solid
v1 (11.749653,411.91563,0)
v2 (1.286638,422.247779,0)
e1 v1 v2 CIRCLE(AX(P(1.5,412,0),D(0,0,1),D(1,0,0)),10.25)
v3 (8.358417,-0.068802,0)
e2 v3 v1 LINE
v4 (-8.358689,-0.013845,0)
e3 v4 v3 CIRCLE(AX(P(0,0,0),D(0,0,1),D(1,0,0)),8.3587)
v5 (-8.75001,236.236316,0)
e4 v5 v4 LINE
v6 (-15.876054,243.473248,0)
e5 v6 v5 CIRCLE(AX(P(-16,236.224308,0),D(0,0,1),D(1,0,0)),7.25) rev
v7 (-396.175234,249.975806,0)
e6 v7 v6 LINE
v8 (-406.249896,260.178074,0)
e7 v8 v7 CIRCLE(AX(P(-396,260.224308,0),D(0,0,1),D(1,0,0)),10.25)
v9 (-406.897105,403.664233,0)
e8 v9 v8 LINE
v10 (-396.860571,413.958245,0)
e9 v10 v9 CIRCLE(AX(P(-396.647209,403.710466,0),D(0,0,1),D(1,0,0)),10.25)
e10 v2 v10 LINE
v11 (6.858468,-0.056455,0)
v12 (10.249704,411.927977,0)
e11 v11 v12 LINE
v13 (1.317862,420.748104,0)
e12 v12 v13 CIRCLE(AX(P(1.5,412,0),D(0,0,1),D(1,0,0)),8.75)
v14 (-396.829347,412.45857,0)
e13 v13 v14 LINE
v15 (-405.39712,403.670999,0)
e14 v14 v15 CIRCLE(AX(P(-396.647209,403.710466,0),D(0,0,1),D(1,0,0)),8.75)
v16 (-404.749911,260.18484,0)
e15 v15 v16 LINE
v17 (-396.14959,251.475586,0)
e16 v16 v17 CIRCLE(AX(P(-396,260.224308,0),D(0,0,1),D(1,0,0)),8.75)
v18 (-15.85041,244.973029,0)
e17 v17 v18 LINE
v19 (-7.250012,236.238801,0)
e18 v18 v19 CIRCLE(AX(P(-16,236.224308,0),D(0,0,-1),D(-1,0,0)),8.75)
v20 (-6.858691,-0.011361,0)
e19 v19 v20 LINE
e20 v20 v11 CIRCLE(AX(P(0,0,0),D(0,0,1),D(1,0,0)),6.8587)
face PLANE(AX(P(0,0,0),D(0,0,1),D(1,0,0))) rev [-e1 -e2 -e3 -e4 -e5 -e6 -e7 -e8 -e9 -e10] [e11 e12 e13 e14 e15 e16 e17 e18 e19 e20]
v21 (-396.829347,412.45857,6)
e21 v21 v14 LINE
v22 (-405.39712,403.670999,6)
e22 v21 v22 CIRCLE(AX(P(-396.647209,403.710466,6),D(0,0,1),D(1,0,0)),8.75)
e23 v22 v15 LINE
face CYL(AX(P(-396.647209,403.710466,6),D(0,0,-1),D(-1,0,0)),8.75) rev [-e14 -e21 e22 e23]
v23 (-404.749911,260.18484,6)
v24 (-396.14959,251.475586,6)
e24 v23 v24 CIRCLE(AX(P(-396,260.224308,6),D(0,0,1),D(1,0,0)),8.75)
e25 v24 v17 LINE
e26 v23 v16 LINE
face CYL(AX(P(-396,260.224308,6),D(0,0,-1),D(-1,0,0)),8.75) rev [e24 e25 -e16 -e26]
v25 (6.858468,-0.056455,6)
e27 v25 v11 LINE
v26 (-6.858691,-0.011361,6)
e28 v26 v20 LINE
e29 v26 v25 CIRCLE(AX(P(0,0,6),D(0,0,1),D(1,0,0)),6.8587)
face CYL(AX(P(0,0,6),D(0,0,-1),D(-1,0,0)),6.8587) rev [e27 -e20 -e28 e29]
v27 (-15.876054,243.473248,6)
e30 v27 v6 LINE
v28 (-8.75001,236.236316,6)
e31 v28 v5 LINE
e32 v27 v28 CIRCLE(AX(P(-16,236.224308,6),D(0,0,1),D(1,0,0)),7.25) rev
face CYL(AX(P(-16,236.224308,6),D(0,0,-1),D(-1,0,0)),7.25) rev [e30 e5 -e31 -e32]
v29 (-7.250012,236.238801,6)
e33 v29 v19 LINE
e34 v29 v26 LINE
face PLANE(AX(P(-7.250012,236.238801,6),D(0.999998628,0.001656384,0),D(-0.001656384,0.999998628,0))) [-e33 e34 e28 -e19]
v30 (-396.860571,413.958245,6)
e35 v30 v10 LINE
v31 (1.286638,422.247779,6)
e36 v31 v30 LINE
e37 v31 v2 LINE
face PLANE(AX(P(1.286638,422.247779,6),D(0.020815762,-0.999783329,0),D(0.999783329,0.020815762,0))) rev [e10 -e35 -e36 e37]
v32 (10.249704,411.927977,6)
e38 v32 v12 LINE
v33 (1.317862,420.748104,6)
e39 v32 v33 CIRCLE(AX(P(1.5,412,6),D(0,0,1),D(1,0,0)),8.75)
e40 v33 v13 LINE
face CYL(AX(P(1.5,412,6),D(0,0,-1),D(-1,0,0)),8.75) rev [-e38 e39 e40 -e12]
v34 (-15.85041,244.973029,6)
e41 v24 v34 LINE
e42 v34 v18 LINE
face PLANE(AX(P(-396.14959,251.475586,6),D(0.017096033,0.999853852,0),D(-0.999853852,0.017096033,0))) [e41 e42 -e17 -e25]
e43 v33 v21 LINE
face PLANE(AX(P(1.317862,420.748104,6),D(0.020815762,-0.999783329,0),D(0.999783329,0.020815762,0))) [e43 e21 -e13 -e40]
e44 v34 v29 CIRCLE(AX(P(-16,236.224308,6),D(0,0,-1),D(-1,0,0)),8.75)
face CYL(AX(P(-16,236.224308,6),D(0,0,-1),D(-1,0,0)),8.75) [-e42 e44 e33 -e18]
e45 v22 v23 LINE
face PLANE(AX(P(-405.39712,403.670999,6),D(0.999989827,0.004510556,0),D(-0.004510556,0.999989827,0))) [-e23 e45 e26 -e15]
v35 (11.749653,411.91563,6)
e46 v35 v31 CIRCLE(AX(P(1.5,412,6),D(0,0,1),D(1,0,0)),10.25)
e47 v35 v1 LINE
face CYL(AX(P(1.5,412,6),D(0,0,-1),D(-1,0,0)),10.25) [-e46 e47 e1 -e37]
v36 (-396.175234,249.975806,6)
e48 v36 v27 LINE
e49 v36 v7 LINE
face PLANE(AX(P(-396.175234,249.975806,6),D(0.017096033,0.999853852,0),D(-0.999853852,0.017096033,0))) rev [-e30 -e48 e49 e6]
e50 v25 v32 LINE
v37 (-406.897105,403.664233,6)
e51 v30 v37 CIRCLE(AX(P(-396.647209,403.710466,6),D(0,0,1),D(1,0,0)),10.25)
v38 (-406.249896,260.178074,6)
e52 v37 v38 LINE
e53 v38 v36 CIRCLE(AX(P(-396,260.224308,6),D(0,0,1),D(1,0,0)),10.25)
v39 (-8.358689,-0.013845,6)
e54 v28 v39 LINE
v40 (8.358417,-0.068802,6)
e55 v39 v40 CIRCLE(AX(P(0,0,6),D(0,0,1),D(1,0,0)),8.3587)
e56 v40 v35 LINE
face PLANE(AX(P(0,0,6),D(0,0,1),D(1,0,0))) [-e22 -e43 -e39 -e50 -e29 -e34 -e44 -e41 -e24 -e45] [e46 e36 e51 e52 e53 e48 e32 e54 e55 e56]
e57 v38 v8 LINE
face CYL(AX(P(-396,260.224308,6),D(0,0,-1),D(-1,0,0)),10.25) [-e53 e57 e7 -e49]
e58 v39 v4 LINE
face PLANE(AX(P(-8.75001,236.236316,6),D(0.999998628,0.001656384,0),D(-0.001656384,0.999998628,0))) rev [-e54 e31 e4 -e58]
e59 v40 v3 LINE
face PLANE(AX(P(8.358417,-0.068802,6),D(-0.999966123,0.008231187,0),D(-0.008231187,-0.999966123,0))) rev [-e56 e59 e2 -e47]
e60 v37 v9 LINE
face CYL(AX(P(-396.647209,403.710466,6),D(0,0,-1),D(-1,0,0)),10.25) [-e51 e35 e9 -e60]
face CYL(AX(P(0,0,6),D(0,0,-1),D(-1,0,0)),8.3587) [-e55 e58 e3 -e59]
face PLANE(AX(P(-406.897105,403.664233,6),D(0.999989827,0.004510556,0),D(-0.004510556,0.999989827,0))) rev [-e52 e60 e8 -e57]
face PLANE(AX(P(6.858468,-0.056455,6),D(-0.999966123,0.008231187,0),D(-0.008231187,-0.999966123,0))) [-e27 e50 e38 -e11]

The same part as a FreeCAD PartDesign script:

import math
import FreeCAD as App
import Part
import Sketcher

V = App.Vector

doc = App.newDocument("Part")
body = doc.addObject("PartDesign::Body", "Body")

sketch1 = doc.addObject("Sketcher::SketchObject", "Sketch")
body.addObject(sketch1)
sketch1.AttachmentSupport = (doc.XY_Plane, [""])
sketch1.MapMode = "FlatFace"
sketch1.addGeometry(Part.LineSegment(V(-8.75001, 236.236316, 0), V(-8.358689, -0.013845, 0)), False)
sketch1.addGeometry(Part.ArcOfCircle(Part.Circle(V(0, 0, 0), V(0, 0, 1), 8.3587), math.radians(-179.905096), math.radians(-0.471618)), False)
sketch1.addGeometry(Part.LineSegment(V(8.358417, -0.068802, 0), V(11.749653, 411.91563, 0)), False)
sketch1.addGeometry(Part.ArcOfCircle(Part.Circle(V(1.5, 412, 0), V(0, 0, 1), 10.25), math.radians(-0.471618), math.radians(91.192741)), False)
sketch1.addGeometry(Part.LineSegment(V(1.286638, 422.247779, 0), V(-396.860571, 413.958245, 0)), False)
sketch1.addGeometry(Part.ArcOfCircle(Part.Circle(V(-396.647209, 403.710466, 0), V(0, 0, 1), 10.25), math.radians(91.192741), math.radians(180.258437)), False)
sketch1.addGeometry(Part.LineSegment(V(-406.897105, 403.664233, 0), V(-406.249896, 260.178074, 0)), False)
sketch1.addGeometry(Part.ArcOfCircle(Part.Circle(V(-396, 260.224308, 0), V(0, 0, 1), 10.25), math.radians(-179.741563), math.radians(-90.979578)), False)
sketch1.addGeometry(Part.LineSegment(V(-396.175234, 249.975806, 0), V(-15.876054, 243.473248, 0)), False)
sketch1.addGeometry(Part.ArcOfCircle(Part.Circle(V(-16, 236.224308, 0), V(0, 0, 1), 7.25), math.radians(0.094904), math.radians(89.020422)), False)
sketch1.addGeometry(Part.LineSegment(V(-6.858691, -0.011361, 0), V(-7.250012, 236.238801, 0)), False)
sketch1.addGeometry(Part.ArcOfCircle(Part.Circle(V(-16, 236.224308, 0), V(0, 0, 1), 8.75), math.radians(0.094904), math.radians(89.020422)), False)
sketch1.addGeometry(Part.LineSegment(V(-15.85041, 244.973029, 0), V(-396.14959, 251.475586, 0)), False)
sketch1.addGeometry(Part.ArcOfCircle(Part.Circle(V(-396, 260.224308, 0), V(0, 0, 1), 8.75), math.radians(-179.741563), math.radians(-90.979578)), False)
sketch1.addGeometry(Part.LineSegment(V(-404.749911, 260.18484, 0), V(-405.39712, 403.670999, 0)), False)
sketch1.addGeometry(Part.ArcOfCircle(Part.Circle(V(-396.647209, 403.710466, 0), V(0, 0, 1), 8.75), math.radians(91.192741), math.radians(180.258437)), False)
sketch1.addGeometry(Part.LineSegment(V(-396.829347, 412.45857, 0), V(1.317862, 420.748104, 0)), False)
sketch1.addGeometry(Part.ArcOfCircle(Part.Circle(V(1.5, 412, 0), V(0, 0, 1), 8.75), math.radians(-0.471618), math.radians(91.192741)), False)
sketch1.addGeometry(Part.LineSegment(V(10.249704, 411.927977, 0), V(6.858468, -0.056455, 0)), False)
sketch1.addGeometry(Part.ArcOfCircle(Part.Circle(V(0, 0, 0), V(0, 0, 1), 6.8587), math.radians(-179.905096), math.radians(-0.471618)), False)
sketch1.addConstraint(Sketcher.Constraint("Tangent", 0, 2, 1, 1))
sketch1.addConstraint(Sketcher.Constraint("Tangent", 1, 2, 2, 1))
sketch1.addConstraint(Sketcher.Constraint("Tangent", 2, 2, 3, 1))
sketch1.addConstraint(Sketcher.Constraint("Tangent", 3, 2, 4, 1))
sketch1.addConstraint(Sketcher.Constraint("Tangent", 4, 2, 5, 1))
sketch1.addConstraint(Sketcher.Constraint("Tangent", 5, 2, 6, 1))
sketch1.addConstraint(Sketcher.Constraint("Tangent", 6, 2, 7, 1))
sketch1.addConstraint(Sketcher.Constraint("Tangent", 7, 2, 8, 1))
sketch1.addConstraint(Sketcher.Constraint("Tangent", 8, 2, 9, 2))
sketch1.addConstraint(Sketcher.Constraint("Tangent", 9, 1, 0, 1))
sketch1.addConstraint(Sketcher.Constraint("Tangent", 10, 2, 11, 1))
sketch1.addConstraint(Sketcher.Constraint("Tangent", 11, 2, 12, 1))
sketch1.addConstraint(Sketcher.Constraint("Tangent", 12, 2, 13, 2))
sketch1.addConstraint(Sketcher.Constraint("Tangent", 13, 1, 14, 1))
sketch1.addConstraint(Sketcher.Constraint("Tangent", 14, 2, 15, 2))
sketch1.addConstraint(Sketcher.Constraint("Tangent", 15, 1, 16, 1))
sketch1.addConstraint(Sketcher.Constraint("Tangent", 16, 2, 17, 2))
sketch1.addConstraint(Sketcher.Constraint("Tangent", 17, 1, 18, 1))
sketch1.addConstraint(Sketcher.Constraint("Tangent", 18, 2, 19, 2))
sketch1.addConstraint(Sketcher.Constraint("Tangent", 19, 1, 10, 1))
sketch1.addConstraint(Sketcher.Constraint("Coincident", 1, 3, -1, 1))
sketch1.addConstraint(Sketcher.Constraint("Coincident", 19, 3, -1, 1))
sketch1.addConstraint(Sketcher.Constraint("Coincident", 11, 3, 9, 3))
sketch1.addConstraint(Sketcher.Constraint("Coincident", 13, 3, 7, 3))
sketch1.addConstraint(Sketcher.Constraint("Coincident", 15, 3, 5, 3))
sketch1.addConstraint(Sketcher.Constraint("Coincident", 17, 3, 3, 3))
sketch1.addConstraint(Sketcher.Constraint("Equal", 3, 5))
sketch1.addConstraint(Sketcher.Constraint("Equal", 5, 7))
sketch1.addConstraint(Sketcher.Constraint("Equal", 11, 13))
sketch1.addConstraint(Sketcher.Constraint("Equal", 13, 15))
sketch1.addConstraint(Sketcher.Constraint("Equal", 15, 17))
sketch1.addConstraint(Sketcher.Constraint("Parallel", 0, 10))
sketch1.addConstraint(Sketcher.Constraint("Parallel", 8, 12))
sketch1.addConstraint(Sketcher.Constraint("Radius", 3, 10.25))
sketch1.addConstraint(Sketcher.Constraint("Radius", 9, 7.25))
sketch1.addConstraint(Sketcher.Constraint("DistanceY", -1, 1, 3, 3, 412.0))
sketch1.addConstraint(Sketcher.Constraint("DistanceX", 7, 3, -1, 1, 396.0))
sketch1.addConstraint(Sketcher.Constraint("DistanceX", 9, 3, -1, 1, 16.0))
sketch1.addConstraint(Sketcher.Constraint("DistanceY", 9, 3, 7, 3, 24.0))
sketch1.addConstraint(Sketcher.Constraint("DistanceX", -1, 1, 3, 3, 1.5))
sketch1.addConstraint(Sketcher.Constraint("Radius", 1, 8.3587))
sketch1.addConstraint(Sketcher.Constraint("DistanceY", -1, 1, 14, 2, 403.670999))
sketch1.addConstraint(Sketcher.Constraint("DistanceY", -1, 1, 10, 2, 236.238801))
sketch1.addConstraint(Sketcher.Constraint("Distance", 6, 143.487618))
pad1 = doc.addObject("PartDesign::Pad", "Pad")
body.addObject(pad1)
pad1.Profile = sketch1
pad1.Length = 6

doc.recompute()
